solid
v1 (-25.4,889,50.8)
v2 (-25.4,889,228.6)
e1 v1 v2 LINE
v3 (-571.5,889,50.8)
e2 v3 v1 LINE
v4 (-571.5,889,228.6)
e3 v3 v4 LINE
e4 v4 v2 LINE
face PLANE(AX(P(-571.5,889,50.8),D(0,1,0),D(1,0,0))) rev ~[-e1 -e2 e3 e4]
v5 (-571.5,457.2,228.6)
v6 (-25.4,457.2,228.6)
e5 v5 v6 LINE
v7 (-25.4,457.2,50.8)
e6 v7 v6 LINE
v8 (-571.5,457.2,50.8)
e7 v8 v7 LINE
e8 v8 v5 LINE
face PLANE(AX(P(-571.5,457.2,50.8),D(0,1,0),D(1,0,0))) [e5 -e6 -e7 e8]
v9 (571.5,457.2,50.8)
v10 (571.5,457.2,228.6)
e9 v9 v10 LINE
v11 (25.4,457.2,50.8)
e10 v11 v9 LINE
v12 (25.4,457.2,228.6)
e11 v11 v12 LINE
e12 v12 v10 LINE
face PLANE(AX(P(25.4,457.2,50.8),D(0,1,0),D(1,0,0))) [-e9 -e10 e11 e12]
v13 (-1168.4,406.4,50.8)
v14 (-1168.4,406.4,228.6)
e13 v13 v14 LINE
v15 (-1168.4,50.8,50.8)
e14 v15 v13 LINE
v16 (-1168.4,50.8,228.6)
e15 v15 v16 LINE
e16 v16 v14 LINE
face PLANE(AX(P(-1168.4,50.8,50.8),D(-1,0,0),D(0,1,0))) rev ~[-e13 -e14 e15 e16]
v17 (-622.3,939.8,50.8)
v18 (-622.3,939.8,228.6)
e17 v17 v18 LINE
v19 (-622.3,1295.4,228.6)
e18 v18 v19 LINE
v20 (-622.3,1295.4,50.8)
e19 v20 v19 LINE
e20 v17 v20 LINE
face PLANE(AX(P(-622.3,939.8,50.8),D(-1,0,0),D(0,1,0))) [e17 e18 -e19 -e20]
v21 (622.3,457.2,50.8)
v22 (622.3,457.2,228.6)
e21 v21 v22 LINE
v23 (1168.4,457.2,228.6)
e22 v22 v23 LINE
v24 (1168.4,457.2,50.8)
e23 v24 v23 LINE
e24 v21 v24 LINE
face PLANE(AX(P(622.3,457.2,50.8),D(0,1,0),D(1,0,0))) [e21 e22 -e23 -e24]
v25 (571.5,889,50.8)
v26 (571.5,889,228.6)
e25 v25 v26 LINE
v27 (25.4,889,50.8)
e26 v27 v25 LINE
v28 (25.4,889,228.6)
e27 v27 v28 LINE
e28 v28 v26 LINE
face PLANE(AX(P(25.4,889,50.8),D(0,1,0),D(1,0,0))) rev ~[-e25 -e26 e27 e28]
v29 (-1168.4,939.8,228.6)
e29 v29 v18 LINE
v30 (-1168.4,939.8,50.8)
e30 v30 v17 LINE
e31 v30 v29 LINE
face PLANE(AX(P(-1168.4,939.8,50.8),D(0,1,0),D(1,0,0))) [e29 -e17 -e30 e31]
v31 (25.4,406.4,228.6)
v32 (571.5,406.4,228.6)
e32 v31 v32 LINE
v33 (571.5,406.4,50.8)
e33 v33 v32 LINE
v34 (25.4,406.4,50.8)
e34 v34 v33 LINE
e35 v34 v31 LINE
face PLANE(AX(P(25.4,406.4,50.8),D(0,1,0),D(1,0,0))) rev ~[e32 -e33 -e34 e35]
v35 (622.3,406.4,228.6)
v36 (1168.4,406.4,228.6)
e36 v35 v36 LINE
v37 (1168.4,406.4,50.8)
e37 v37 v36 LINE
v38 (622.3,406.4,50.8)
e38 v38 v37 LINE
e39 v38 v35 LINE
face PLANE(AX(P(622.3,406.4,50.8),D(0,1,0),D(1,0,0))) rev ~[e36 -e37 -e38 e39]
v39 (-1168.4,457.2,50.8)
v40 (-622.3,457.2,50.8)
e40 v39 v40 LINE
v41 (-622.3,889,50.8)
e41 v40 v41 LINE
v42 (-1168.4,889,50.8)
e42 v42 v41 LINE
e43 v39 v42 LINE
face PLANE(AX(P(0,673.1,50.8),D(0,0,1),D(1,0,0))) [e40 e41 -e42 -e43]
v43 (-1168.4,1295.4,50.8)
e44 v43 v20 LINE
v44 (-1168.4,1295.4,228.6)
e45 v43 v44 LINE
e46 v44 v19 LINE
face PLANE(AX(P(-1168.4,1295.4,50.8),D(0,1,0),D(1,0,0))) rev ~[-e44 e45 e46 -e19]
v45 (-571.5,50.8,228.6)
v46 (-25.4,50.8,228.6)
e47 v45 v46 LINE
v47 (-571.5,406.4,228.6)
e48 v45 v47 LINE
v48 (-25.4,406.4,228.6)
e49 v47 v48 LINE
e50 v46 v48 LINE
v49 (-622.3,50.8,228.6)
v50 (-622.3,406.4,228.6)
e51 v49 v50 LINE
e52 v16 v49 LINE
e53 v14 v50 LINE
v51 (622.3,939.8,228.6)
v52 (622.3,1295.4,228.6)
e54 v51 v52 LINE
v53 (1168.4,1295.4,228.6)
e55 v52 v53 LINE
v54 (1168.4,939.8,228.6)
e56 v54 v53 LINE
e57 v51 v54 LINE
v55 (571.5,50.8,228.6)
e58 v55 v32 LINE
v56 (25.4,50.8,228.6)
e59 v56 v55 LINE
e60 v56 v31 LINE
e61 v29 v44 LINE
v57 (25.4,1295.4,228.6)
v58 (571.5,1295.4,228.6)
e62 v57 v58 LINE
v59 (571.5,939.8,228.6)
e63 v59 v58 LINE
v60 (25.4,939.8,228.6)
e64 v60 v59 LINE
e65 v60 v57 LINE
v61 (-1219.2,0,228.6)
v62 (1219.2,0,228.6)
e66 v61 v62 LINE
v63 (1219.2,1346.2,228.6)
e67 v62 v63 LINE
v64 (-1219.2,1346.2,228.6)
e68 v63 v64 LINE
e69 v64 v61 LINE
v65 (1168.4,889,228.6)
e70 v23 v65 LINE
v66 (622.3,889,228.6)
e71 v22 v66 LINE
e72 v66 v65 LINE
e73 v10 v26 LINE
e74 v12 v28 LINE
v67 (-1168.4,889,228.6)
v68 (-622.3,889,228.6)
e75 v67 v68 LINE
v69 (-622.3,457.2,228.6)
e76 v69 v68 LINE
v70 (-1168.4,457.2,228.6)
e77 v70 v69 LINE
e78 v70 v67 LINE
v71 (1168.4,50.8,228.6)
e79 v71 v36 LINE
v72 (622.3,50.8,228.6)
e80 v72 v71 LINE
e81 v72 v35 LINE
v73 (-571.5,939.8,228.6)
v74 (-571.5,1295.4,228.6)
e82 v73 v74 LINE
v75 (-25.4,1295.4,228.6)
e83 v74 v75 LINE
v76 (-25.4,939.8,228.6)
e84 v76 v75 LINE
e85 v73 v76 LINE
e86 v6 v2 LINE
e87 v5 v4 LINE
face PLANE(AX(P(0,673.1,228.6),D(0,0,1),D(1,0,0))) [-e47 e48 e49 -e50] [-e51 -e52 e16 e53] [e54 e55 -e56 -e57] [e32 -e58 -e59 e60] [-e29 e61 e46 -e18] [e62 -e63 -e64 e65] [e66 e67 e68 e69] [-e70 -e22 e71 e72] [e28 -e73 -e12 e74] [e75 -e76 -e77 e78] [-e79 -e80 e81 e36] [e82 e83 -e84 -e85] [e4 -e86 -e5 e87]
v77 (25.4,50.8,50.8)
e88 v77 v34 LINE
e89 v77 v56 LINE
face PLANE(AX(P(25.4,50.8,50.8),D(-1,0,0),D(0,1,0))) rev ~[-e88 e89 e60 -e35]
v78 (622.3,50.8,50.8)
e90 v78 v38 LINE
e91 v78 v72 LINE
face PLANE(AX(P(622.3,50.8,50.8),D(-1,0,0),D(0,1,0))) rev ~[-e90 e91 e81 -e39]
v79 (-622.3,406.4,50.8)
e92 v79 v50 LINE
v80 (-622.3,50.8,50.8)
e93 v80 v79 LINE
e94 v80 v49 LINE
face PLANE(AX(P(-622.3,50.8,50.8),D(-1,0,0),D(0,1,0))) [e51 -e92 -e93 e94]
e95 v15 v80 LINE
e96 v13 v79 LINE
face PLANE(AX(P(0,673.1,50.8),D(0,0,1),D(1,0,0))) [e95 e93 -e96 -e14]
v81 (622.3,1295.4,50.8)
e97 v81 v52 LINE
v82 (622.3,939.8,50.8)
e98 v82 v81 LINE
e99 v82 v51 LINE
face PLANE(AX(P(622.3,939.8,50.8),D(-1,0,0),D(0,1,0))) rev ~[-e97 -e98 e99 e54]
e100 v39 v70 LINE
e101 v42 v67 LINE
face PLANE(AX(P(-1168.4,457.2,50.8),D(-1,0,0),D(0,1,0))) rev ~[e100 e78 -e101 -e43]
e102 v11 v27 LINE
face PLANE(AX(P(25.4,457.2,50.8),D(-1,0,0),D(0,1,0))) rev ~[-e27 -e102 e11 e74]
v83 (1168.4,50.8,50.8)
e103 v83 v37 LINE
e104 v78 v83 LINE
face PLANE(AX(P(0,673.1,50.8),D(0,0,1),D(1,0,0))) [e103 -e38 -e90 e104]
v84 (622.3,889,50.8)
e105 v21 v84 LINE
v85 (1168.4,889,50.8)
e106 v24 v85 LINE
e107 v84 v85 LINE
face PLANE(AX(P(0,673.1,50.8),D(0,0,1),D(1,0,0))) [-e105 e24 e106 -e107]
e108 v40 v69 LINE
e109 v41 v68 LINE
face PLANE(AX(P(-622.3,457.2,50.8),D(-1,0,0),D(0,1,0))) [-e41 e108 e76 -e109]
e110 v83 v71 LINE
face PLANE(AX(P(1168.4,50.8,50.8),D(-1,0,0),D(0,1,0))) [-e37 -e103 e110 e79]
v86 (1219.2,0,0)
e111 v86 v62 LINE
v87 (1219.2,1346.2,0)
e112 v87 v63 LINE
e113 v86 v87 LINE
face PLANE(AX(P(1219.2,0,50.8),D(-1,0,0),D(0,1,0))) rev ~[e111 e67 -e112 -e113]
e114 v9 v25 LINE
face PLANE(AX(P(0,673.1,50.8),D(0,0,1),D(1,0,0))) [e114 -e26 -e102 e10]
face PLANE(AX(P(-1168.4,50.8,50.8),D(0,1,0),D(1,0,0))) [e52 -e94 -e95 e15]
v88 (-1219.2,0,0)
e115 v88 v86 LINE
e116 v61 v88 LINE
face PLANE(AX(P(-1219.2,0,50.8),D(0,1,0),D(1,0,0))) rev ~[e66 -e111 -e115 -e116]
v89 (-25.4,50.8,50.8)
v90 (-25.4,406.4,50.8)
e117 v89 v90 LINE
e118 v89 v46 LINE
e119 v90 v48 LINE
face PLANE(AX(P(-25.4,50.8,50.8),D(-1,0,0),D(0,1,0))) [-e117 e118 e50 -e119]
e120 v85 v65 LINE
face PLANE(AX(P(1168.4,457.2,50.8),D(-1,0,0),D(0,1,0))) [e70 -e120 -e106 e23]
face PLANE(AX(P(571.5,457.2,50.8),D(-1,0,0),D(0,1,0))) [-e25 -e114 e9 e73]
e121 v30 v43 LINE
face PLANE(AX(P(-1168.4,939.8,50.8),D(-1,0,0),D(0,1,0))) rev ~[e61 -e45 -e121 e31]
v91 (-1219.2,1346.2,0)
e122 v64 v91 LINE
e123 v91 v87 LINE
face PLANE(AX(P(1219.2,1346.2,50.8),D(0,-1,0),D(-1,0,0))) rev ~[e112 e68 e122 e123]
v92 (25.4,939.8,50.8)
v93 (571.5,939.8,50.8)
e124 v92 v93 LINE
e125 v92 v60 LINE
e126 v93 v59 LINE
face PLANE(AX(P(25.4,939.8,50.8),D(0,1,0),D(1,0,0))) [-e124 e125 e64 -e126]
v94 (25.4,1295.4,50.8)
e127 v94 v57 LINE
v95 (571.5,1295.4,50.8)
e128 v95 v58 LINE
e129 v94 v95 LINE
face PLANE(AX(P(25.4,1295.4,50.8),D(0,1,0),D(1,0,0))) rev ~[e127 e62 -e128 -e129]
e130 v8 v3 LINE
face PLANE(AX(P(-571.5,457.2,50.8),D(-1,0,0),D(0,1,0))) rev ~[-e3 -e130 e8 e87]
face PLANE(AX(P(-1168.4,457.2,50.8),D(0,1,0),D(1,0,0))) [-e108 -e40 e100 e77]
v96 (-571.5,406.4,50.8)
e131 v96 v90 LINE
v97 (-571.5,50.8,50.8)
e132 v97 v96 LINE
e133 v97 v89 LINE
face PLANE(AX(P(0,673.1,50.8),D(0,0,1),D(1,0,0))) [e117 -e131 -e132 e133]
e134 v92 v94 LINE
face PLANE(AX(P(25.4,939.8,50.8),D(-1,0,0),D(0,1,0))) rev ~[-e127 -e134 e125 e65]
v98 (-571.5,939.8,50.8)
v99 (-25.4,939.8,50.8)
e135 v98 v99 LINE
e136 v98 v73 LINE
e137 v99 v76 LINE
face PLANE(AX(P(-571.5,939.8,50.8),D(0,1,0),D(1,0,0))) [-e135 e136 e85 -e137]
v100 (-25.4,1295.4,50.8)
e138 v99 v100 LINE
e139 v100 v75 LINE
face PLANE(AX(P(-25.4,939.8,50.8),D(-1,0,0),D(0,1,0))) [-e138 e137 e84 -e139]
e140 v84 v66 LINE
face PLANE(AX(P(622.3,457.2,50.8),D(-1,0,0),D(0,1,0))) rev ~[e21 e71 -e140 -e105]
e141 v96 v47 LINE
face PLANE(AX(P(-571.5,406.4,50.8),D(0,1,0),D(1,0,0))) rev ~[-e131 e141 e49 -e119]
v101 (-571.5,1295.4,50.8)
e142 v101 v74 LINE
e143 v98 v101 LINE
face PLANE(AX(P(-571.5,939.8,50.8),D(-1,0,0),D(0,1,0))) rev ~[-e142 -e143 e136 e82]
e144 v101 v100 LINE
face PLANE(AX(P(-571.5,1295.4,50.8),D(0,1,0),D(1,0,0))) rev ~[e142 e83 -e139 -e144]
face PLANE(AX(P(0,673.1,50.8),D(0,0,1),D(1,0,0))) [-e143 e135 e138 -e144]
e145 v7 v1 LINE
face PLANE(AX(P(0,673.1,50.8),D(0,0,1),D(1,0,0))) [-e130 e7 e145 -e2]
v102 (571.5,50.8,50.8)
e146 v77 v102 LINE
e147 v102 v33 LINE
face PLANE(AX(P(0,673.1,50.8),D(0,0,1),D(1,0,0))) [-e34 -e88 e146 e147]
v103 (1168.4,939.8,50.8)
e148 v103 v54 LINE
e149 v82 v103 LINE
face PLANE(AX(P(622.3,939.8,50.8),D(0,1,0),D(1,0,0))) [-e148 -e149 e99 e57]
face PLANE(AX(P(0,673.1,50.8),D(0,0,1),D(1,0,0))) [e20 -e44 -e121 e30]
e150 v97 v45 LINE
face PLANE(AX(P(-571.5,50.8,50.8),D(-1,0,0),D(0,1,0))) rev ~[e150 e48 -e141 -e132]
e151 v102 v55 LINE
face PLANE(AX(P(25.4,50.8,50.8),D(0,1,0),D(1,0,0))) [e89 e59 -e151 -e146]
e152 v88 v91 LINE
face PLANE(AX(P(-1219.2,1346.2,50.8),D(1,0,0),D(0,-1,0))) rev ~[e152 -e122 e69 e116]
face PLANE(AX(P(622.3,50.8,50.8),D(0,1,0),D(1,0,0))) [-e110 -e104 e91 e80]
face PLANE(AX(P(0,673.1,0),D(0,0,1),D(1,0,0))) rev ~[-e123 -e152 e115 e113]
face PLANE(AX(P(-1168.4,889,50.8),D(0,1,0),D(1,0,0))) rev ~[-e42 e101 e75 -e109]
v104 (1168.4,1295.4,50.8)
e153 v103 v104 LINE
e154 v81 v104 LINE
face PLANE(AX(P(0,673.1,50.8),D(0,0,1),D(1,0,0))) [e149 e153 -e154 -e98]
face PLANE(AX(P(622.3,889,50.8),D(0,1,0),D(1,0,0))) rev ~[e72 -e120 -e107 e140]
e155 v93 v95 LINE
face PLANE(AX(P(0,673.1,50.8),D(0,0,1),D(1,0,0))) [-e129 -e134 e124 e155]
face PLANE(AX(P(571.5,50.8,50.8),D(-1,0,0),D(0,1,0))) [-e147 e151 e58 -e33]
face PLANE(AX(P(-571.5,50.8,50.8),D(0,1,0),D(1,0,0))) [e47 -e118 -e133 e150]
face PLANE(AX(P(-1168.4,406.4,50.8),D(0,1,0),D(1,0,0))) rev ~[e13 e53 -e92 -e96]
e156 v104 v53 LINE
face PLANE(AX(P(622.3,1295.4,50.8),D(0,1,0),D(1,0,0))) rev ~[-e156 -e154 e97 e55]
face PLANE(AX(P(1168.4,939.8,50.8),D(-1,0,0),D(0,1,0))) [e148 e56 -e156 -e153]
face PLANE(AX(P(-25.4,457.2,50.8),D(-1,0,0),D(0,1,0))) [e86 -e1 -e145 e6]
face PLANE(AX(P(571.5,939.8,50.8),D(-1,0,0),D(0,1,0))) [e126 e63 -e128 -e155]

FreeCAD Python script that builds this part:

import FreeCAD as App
import Part
import Sketcher
Q = App.Units.Quantity


def add_polygon(sketch, points):
    """Adds a closed chain of lines whose ends are joined by coincident constraints."""
    first, n = sketch.GeometryCount, len(points)
    for a, b in zip(points, points[1:] + points[:1]):
        sketch.addGeometry(Part.LineSegment(App.Vector(*a, 0), App.Vector(*b, 0)), False)
    for i in range(n):
        sketch.addConstraint(Sketcher.Constraint("Coincident", first + i, 2, first + (i + 1) % n, 1))

doc = App.newDocument("Part")
body = doc.addObject("PartDesign::Body", "Body")

# Sketch on XY plane
sketch1 = doc.addObject("Sketcher::SketchObject", "Sketch")
body.addObject(sketch1)
sketch1.AttachmentSupport = (doc.XY_Plane, [""])
sketch1.MapMode = "FlatFace"
add_polygon(sketch1, [(-1219.2, 1346.2), (-1219.2, 0), (1219.2, 0), (1219.2, 1346.2)])  # lines 0-3
sketch1.addConstraint([
    Sketcher.Constraint("Vertical", 0),
    Sketcher.Constraint("Horizontal", 1),
    Sketcher.Constraint("Vertical", 2),
    Sketcher.Constraint("Horizontal", 3),
    Sketcher.Constraint("Symmetric", 0, 2, 1, 2, -1, 1),
    Sketcher.Constraint("DistanceX", 1, 1, 1, 2, Q("96 in")),
    Sketcher.Constraint("DistanceY", 0, 2, 0, 1, Q("53 in")),
])
pad1 = doc.addObject("PartDesign::Pad", "Pad")
body.addObject(pad1)
pad1.Profile = sketch1
pad1.Length = Q("2 in")

# Sketch on XY plane
sketch2 = doc.addObject("Sketcher::SketchObject", "Sketch001")
body.addObject(sketch2)
sketch2.AttachmentSupport = (doc.XY_Plane, [""])
sketch2.MapMode = "FlatFace"
sketch2.AttachmentOffset = App.Placement(App.Vector(0, 0, 2 * 25.4), App.Rotation())
add_polygon(sketch2, [(-1219.2, 0), (1219.2, 0), (1219.2, 1346.2), (-1219.2, 1346.2)])  # lines 0-3
add_polygon(sketch2, [(-622.3, 50.8), (-1168.4, 50.8), (-1168.4, 406.4), (-622.3, 406.4)])  # lines 4-7
add_polygon(sketch2, [(-25.4, 50.8), (-571.5, 50.8), (-571.5, 406.4), (-25.4, 406.4)])  # lines 8-11
add_polygon(sketch2, [(571.5, 50.8), (25.4, 50.8), (25.4, 406.4), (571.5, 406.4)])  # lines 12-15
add_polygon(sketch2, [(1168.4, 50.8), (622.3, 50.8), (622.3, 406.4), (1168.4, 406.4)])  # lines 16-19
add_polygon(sketch2, [(-622.3, 457.2), (-1168.4, 457.2), (-1168.4, 889), (-622.3, 889)])  # lines 20-23
add_polygon(sketch2, [(-25.4, 457.2), (-571.5, 457.2), (-571.5, 889), (-25.4, 889)])  # lines 24-27
add_polygon(sketch2, [(-622.3, 939.8), (-1168.4, 939.8), (-1168.4, 1295.4), (-622.3, 1295.4)])  # lines 28-31
add_polygon(sketch2, [(-25.4, 939.8), (-571.5, 939.8), (-571.5, 1295.4), (-25.4, 1295.4)])  # lines 32-35
add_polygon(sketch2, [(571.5, 457.2), (25.4, 457.2), (25.4, 889), (571.5, 889)])  # lines 36-39
add_polygon(sketch2, [(1168.4, 457.2), (622.3, 457.2), (622.3, 889), (1168.4, 889)])  # lines 40-43
add_polygon(sketch2, [(571.5, 939.8), (25.4, 939.8), (25.4, 1295.4), (571.5, 1295.4)])  # lines 44-47
add_polygon(sketch2, [(1168.4, 939.8), (622.3, 939.8), (622.3, 1295.4), (1168.4, 1295.4)])  # lines 48-51
sketch2.addConstraint([
    Sketcher.Constraint("Horizontal", 0),
    Sketcher.Constraint("Vertical", 1),
    Sketcher.Constraint("Horizontal", 2),
    Sketcher.Constraint("Vertical", 3),
    Sketcher.Constraint("Horizontal", 4),
    Sketcher.Constraint("Vertical", 5),
    Sketcher.Constraint("Horizontal", 6),
    Sketcher.Constraint("Vertical", 7),
    Sketcher.Constraint("Horizontal", 8),
    Sketcher.Constraint("Vertical", 9),
    Sketcher.Constraint("Horizontal", 10),
    Sketcher.Constraint("Vertical", 11),
    Sketcher.Constraint("Horizontal", 12),
    Sketcher.Constraint("Vertical", 13),
    Sketcher.Constraint("Horizontal", 14),
    Sketcher.Constraint("Vertical", 15),
    Sketcher.Constraint("Horizontal", 16),
    Sketcher.Constraint("Vertical", 17),
    Sketcher.Constraint("Horizontal", 18),
    Sketcher.Constraint("Vertical", 19),
    Sketcher.Constraint("Horizontal", 20),
    Sketcher.Constraint("Vertical", 21),
    Sketcher.Constraint("Horizontal", 22),
    Sketcher.Constraint("Vertical", 23),
    Sketcher.Constraint("Horizontal", 24),
    Sketcher.Constraint("Vertical", 25),
    Sketcher.Constraint("Horizontal", 26),
    Sketcher.Constraint("Vertical", 27),
    Sketcher.Constraint("Horizontal", 28),
    Sketcher.Constraint("Vertical", 29),
    Sketcher.Constraint("Horizontal", 30),
    Sketcher.Constraint("Vertical", 31),
    Sketcher.Constraint("Horizontal", 32),
    Sketcher.Constraint("Vertical", 33),
    Sketcher.Constraint("Horizontal", 34),
    Sketcher.Constraint("Vertical", 35),
    Sketcher.Constraint("Horizontal", 36),
    Sketcher.Constraint("Vertical", 37),
    Sketcher.Constraint("Horizontal", 38),
    Sketcher.Constraint("Vertical", 39),
    Sketcher.Constraint("Horizontal", 40),
    Sketcher.Constraint("Vertical", 41),
    Sketcher.Constraint("Horizontal", 42),
    Sketcher.Constraint("Vertical", 43),
    Sketcher.Constraint("Horizontal", 44),
    Sketcher.Constraint("Vertical", 45),
    Sketcher.Constraint("Horizontal", 46),
    Sketcher.Constraint("Vertical", 47),
    Sketcher.Constraint("Horizontal", 48),
    Sketcher.Constraint("Vertical", 49),
    Sketcher.Constraint("Horizontal", 50),
    Sketcher.Constraint("Vertical", 51),
    Sketcher.Constraint("Symmetric", 0, 2, 3, 2, -1, 1),
    Sketcher.Constraint("Symmetric", 11, 2, 12, 2, -2),
    Sketcher.Constraint("Symmetric", 9, 2, 14, 2, -2),
    Sketcher.Constraint("Symmetric", 7, 2, 16, 2, -2),
    Sketcher.Constraint("Symmetric", 5, 2, 18, 2, -2),
    Sketcher.Constraint("Symmetric", 27, 2, 36, 2, -2),
    Sketcher.Constraint("Symmetric", 25, 2, 38, 2, -2),
    Sketcher.Constraint("Symmetric", 23, 2, 40, 2, -2),
    Sketcher.Constraint("Symmetric", 21, 2, 42, 2, -2),
    Sketcher.Constraint("Symmetric", 35, 2, 44, 2, -2),
    Sketcher.Constraint("Symmetric", 33, 2, 46, 2, -2),
    Sketcher.Constraint("Symmetric", 31, 2, 48, 2, -2),
    Sketcher.Constraint("Symmetric", 29, 2, 50, 2, -2),
    Sketcher.Constraint("Horizontal", 7, 2, 8, 2),
    Sketcher.Constraint("Horizontal", 6, 2, 9, 2),
    Sketcher.Constraint("Horizontal", 23, 2, 24, 2),
    Sketcher.Constraint("Horizontal", 22, 2, 25, 2),
    Sketcher.Constraint("Horizontal", 31, 2, 32, 2),
    Sketcher.Constraint("Horizontal", 30, 2, 33, 2),
    Sketcher.Constraint("Vertical", 5, 2, 20, 2),
    Sketcher.Constraint("Vertical", 7, 2, 22, 2),
    Sketcher.Constraint("Vertical", 9, 2, 24, 2),
    Sketcher.Constraint("Vertical", 11, 2, 26, 2),
    Sketcher.Constraint("Vertical", 21, 2, 28, 2),
    Sketcher.Constraint("Vertical", 23, 2, 30, 2),
    Sketcher.Constraint("Vertical", 25, 2, 32, 2),
    Sketcher.Constraint("Vertical", 27, 2, 34, 2),
    Sketcher.Constraint("Equal", 6, 8),
    Sketcher.Constraint("Equal", 19, 29),
    Sketcher.Constraint("DistanceX", 0, 1, 0, 2, Q("96 in")),
    Sketcher.Constraint("DistanceY", 1, 1, 1, 2, Q("53 in")),
    Sketcher.Constraint("DistanceY", 5, 1, 5, 2, Q("14 in")),
    Sketcher.Constraint("DistanceY", 21, 1, 21, 2, Q("17 in")),
    Sketcher.Constraint("DistanceX", 4, 2, 4, 1, Q("21.5 in")),
    Sketcher.Constraint("DistanceX", 4, 2, -1, 1, Q("46 in")),
    Sketcher.Constraint("DistanceY", -1, 1, 4, 2, Q("2 in")),
    Sketcher.Constraint("DistanceX", 10, 2, -1, 1, Q("1 in")),
    Sketcher.Constraint("DistanceY", -1, 1, 20, 2, Q("18 in")),
    Sketcher.Constraint("DistanceY", -1, 1, 28, 2, Q("37 in")),
])
pad2 = doc.addObject("PartDesign::Pad", "Pad001")
body.addObject(pad2)
pad2.Profile = sketch2
pad2.Length = Q("7 in")

doc.recompute()
